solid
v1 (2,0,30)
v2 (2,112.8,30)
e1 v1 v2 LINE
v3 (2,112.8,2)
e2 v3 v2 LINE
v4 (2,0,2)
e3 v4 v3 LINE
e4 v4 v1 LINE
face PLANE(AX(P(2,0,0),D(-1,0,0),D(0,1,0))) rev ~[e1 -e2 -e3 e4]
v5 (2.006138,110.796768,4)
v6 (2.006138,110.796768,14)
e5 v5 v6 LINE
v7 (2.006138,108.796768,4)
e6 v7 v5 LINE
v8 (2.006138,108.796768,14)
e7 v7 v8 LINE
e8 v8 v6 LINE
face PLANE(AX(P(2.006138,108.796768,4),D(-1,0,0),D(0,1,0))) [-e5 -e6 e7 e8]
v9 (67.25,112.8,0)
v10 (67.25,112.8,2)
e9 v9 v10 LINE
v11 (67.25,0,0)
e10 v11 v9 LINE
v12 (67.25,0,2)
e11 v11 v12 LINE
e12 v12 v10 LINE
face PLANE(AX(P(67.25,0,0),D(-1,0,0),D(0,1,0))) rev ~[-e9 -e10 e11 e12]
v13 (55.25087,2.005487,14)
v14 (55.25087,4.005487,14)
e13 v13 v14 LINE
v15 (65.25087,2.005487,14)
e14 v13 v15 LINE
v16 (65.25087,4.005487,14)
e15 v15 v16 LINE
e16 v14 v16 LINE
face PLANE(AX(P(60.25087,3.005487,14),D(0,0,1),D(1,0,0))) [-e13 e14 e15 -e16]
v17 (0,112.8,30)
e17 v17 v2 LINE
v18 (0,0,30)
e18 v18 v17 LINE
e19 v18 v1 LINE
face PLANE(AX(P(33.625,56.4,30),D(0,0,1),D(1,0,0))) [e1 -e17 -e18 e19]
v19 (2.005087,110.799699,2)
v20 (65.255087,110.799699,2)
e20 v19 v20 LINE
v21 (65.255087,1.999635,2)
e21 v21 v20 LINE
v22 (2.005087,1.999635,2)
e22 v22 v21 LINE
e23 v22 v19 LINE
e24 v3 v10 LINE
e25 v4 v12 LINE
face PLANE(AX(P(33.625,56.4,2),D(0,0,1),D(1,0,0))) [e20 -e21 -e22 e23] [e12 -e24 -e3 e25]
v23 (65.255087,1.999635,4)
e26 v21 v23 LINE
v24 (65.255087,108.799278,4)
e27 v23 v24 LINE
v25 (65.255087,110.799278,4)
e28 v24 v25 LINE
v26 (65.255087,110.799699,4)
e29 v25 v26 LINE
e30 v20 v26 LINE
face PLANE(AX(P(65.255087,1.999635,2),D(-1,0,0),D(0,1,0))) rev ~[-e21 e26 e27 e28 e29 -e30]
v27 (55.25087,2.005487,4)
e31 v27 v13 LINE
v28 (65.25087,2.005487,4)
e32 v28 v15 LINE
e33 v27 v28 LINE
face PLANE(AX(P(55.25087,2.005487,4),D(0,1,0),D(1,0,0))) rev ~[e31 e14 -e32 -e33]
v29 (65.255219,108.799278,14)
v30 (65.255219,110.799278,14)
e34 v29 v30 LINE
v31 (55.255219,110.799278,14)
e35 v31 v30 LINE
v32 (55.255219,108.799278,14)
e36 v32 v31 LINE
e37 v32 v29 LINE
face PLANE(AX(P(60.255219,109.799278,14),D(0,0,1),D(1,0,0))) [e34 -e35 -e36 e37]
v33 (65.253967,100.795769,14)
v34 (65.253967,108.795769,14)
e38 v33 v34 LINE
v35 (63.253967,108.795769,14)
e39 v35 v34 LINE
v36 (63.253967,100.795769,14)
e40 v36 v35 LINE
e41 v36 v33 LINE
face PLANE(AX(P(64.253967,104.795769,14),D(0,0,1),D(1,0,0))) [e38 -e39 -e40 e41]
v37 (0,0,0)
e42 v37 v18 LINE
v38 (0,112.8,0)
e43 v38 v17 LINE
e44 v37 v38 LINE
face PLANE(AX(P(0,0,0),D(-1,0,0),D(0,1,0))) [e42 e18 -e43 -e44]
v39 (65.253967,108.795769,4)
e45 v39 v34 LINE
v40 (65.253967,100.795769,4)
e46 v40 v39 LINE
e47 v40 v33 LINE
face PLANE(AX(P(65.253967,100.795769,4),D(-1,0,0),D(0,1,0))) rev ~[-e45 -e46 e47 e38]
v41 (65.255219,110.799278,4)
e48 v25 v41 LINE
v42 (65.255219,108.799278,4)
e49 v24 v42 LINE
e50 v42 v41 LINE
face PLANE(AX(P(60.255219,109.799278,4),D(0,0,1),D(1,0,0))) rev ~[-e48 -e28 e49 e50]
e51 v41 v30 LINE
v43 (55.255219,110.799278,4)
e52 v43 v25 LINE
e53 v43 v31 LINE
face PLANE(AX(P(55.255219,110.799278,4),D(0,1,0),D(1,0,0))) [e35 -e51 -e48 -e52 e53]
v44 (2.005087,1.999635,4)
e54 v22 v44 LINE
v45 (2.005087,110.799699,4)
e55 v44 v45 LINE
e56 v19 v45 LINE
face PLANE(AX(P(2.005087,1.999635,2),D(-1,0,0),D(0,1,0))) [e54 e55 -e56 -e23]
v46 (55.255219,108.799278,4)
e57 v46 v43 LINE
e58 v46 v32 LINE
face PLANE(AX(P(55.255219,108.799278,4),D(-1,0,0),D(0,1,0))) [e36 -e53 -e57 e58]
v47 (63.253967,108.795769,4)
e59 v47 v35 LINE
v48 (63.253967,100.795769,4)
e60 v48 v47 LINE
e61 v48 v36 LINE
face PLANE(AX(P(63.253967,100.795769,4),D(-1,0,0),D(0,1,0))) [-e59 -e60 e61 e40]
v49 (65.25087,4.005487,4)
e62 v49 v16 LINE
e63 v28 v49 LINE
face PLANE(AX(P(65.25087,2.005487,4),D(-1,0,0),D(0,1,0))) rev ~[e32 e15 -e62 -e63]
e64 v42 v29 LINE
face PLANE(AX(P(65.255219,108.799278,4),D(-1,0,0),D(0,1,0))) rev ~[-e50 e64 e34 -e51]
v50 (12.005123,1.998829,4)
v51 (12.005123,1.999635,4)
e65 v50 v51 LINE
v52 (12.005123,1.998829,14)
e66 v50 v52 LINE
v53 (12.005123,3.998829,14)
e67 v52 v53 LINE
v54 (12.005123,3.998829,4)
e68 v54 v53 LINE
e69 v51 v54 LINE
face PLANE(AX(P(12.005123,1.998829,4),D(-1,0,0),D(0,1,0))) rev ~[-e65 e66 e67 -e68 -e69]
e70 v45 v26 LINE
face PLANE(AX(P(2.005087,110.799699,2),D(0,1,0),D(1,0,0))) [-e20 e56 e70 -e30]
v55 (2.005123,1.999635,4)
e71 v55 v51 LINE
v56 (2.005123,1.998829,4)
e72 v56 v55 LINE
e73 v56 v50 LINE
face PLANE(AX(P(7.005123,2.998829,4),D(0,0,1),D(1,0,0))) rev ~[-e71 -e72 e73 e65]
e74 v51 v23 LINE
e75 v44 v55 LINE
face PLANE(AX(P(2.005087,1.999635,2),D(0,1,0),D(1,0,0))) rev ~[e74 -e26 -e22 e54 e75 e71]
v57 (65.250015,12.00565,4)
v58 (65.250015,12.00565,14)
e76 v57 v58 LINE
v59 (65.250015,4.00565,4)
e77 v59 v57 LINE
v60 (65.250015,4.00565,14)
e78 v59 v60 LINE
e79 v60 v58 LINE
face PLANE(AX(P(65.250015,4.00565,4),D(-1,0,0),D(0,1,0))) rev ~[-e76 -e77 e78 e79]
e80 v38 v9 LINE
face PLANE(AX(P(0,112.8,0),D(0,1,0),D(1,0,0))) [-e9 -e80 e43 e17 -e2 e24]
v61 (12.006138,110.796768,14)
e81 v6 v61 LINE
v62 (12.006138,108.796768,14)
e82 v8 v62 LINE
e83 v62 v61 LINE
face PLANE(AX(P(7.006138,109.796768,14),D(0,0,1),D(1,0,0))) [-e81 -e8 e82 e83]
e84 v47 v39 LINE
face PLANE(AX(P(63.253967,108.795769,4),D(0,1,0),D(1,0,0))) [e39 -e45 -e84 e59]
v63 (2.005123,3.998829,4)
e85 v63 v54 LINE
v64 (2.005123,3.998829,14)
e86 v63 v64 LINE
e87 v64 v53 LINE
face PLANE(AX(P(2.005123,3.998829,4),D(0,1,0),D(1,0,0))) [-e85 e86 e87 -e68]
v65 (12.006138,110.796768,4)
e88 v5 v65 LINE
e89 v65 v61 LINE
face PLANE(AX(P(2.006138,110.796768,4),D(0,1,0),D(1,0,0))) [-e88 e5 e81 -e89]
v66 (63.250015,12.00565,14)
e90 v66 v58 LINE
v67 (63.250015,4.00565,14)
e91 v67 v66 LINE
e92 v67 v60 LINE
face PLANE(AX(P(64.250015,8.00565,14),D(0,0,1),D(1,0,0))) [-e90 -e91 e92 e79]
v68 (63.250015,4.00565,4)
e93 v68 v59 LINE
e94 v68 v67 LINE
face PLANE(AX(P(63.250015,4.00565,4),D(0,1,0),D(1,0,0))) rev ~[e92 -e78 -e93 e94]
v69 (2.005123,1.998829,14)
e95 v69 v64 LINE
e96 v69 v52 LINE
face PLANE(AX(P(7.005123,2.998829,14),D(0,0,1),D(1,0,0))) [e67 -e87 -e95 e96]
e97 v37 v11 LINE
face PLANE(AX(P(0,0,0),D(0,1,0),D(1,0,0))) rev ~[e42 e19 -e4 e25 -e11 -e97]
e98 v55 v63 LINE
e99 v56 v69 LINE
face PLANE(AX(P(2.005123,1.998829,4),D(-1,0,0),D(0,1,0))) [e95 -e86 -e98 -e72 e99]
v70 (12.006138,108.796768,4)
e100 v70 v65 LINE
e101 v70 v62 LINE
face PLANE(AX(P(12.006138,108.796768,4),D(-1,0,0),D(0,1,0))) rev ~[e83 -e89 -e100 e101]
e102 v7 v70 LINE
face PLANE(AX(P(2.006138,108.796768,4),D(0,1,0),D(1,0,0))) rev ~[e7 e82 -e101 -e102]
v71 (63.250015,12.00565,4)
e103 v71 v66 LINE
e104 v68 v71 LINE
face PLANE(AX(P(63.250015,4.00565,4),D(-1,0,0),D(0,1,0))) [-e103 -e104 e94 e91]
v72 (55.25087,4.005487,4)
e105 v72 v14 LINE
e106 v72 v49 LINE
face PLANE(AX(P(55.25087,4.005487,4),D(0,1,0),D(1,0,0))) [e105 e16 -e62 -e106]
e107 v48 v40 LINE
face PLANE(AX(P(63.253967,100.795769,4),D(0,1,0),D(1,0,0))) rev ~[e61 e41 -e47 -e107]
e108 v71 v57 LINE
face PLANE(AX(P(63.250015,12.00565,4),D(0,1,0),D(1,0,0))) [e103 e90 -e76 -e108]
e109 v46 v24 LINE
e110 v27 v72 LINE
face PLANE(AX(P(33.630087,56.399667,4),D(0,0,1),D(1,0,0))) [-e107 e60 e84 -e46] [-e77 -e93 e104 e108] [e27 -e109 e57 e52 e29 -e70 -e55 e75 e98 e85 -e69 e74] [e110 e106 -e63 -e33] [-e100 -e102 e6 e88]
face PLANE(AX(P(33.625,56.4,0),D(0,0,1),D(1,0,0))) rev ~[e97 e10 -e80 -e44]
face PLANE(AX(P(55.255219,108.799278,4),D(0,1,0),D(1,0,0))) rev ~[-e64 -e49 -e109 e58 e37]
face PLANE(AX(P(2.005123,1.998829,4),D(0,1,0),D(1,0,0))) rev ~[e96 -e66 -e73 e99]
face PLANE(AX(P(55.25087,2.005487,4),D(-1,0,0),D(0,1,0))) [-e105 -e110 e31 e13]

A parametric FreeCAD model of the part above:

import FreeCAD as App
import Part
import Sketcher

V = App.Vector
Q = App.Units.Quantity


def faces_at(feature, points):
    """Names of the faces that lie closest to the given points."""
    faces = feature.Shape.Faces
    near = lambda p: min(range(len(faces)), key=lambda i: faces[i].distToShape(Part.Vertex(*p))[0])
    return sorted({f"Face{near(p) + 1}" for p in points})

doc = App.newDocument("Part")
body = doc.addObject("PartDesign::Body", "Body")

sketch1 = body.newObject("Sketcher::SketchObject", "Sketch")
sketch1.AttachmentSupport = (doc.getObject("XY_Plane"), [""])
sketch1.MapMode = "FlatFace"
sketch1.addGeometry([
    Part.LineSegment(V(0, 113, 0), V(0, 0, 0)),
    Part.LineSegment(V(0, 0, 0), V(67, 0, 0)),
    Part.LineSegment(V(67, 0, 0), V(67, 113, 0)),
    Part.LineSegment(V(67, 113, 0), V(0, 113, 0)),
], False)
sketch1.addConstraint([
    Sketcher.Constraint("Coincident", 0, 2, 1, 1),
    Sketcher.Constraint("Coincident", 1, 2, 2, 1),
    Sketcher.Constraint("Coincident", 2, 2, 3, 1),
    Sketcher.Constraint("Coincident", 3, 2, 0, 1),
    Sketcher.Constraint("Vertical", 0),
    Sketcher.Constraint("Horizontal", 1),
    Sketcher.Constraint("Vertical", 2),
    Sketcher.Constraint("Horizontal", 3),
    Sketcher.Constraint("Coincident", 0, 2, -1, 1),
    Sketcher.Constraint("DistanceY", 0, 2, 0, 1, Q("112.8 mm")),
    Sketcher.Constraint("DistanceX", 1, 1, 1, 2, Q("67.25 mm")),
])
pad1 = body.newObject("PartDesign::Pad", "Pad")
pad1.Profile = sketch1
pad1.Length = 30
doc.recompute()

thickness = body.newObject("PartDesign::Thickness", "Thickness")
thickness.Base = (pad1, faces_at(pad1, [
    (67.25, 56.4, 15),
    (33.625, 0, 15),
    (33.625, 56.4, 30),
    (33.625, 112.8, 15),
]))
thickness.Value = 2
thickness.Reversed = True
thickness.Join = "Arc"

sketch2 = body.newObject("Sketcher::SketchObject", "Sketch001")
sketch2.AttachmentSupport = (doc.getObject("XY_Plane"), [""])
sketch2.MapMode = "FlatFace"
sketch2.AttachmentOffset = App.Placement(V(0, 0, 2), App.Rotation())
sketch2.addGeometry([
    Part.LineSegment(V(2, 111, 0), V(2, 2, 0)),
    Part.LineSegment(V(2, 2, 0), V(65, 2, 0)),
    Part.LineSegment(V(65, 2, 0), V(65, 111, 0)),
    Part.LineSegment(V(65, 111, 0), V(2, 111, 0)),
], False)
sketch2.addConstraint([
    Sketcher.Constraint("Coincident", 0, 2, 1, 1),
    Sketcher.Constraint("Coincident", 1, 2, 2, 1),
    Sketcher.Constraint("Coincident", 2, 2, 3, 1),
    Sketcher.Constraint("Coincident", 3, 2, 0, 1),
    Sketcher.Constraint("Vertical", 0),
    Sketcher.Constraint("Horizontal", 1),
    Sketcher.Constraint("Vertical", 2),
    Sketcher.Constraint("Horizontal", 3),
    Sketcher.Constraint("DistanceX", 1, 1, 1, 2, Q("63.25 mm")),
    Sketcher.Constraint("DistanceY", -1, 1, 2, 2, Q("110.799699 mm")),
    Sketcher.Constraint("DistanceY", 0, 2, 0, 1, Q("108.800063 mm")),
    Sketcher.Constraint("DistanceX", -1, 1, 0, 2, Q("2.005087 mm")),
])
pad2 = body.newObject("PartDesign::Pad", "Pad001")
pad2.Profile = sketch2
pad2.Length = 2

sketch3 = body.newObject("Sketcher::SketchObject", "Sketch002")
sketch3.AttachmentSupport = (doc.getObject("XY_Plane"), [""])
sketch3.MapMode = "FlatFace"
sketch3.AttachmentOffset = App.Placement(V(0, 0, 4), App.Rotation())
sketch3.addGeometry([
    Part.LineSegment(V(2, 4, 0), V(2, 2, 0)),
    Part.LineSegment(V(2, 2, 0), V(12, 2, 0)),
    Part.LineSegment(V(12, 2, 0), V(12, 4, 0)),
    Part.LineSegment(V(12, 4, 0), V(2, 4, 0)),
], False)
sketch3.addConstraint([
    Sketcher.Constraint("Coincident", 0, 2, 1, 1),
    Sketcher.Constraint("Coincident", 1, 2, 2, 1),
    Sketcher.Constraint("Coincident", 2, 2, 3, 1),
    Sketcher.Constraint("Coincident", 3, 2, 0, 1),
    Sketcher.Constraint("Vertical", 0),
    Sketcher.Constraint("Horizontal", 1),
    Sketcher.Constraint("Vertical", 2),
    Sketcher.Constraint("Horizontal", 3),
    Sketcher.Constraint("DistanceX", 1, 1, 1, 2, Q("10 mm")),
    Sketcher.Constraint("DistanceY", 0, 2, 0, 1, Q("2 mm")),
    Sketcher.Constraint("DistanceY", -1, 1, 0, 2, Q("1.998829 mm")),
    Sketcher.Constraint("DistanceX", -1, 1, 0, 2, Q("2.005123 mm")),
])
pad3 = body.newObject("PartDesign::Pad", "Pad002")
pad3.Profile = sketch3
pad3.Length = 10

sketch4 = body.newObject("Sketcher::SketchObject", "Sketch003")
sketch4.AttachmentSupport = (doc.getObject("XY_Plane"), [""])
sketch4.MapMode = "FlatFace"
sketch4.AttachmentOffset = App.Placement(V(0, 0, 4), App.Rotation())
sketch4.addGeometry([
    Part.LineSegment(V(55.3, 4, 0), V(55.3, 2, 0)),
    Part.LineSegment(V(55.3, 2, 0), V(65.3, 2, 0)),
    Part.LineSegment(V(65.3, 2, 0), V(65.3, 4, 0)),
    Part.LineSegment(V(65.3, 4, 0), V(55.3, 4, 0)),
], False)
sketch4.addConstraint([
    Sketcher.Constraint("Coincident", 0, 2, 1, 1),
    Sketcher.Constraint("Coincident", 1, 2, 2, 1),
    Sketcher.Constraint("Coincident", 2, 2, 3, 1),
    Sketcher.Constraint("Coincident", 3, 2, 0, 1),
    Sketcher.Constraint("Vertical", 0),
    Sketcher.Constraint("Horizontal", 1),
    Sketcher.Constraint("Vertical", 2),
    Sketcher.Constraint("Horizontal", 3),
    Sketcher.Constraint("DistanceX", 1, 1, 1, 2, Q("10 mm")),
    Sketcher.Constraint("DistanceY", 0, 2, 0, 1, Q("2 mm")),
    Sketcher.Constraint("DistanceX", -1, 1, 0, 2, Q("55.25087 mm")),
    Sketcher.Constraint("DistanceY", -1, 1, 0, 2, Q("2.005487 mm")),
])
pad4 = body.newObject("PartDesign::Pad", "Pad003")
pad4.Profile = sketch4
pad4.Length = 10

sketch5 = body.newObject("Sketcher::SketchObject", "Sketch004")
sketch5.AttachmentSupport = (doc.getObject("XY_Plane"), [""])
sketch5.MapMode = "FlatFace"
sketch5.AttachmentOffset = App.Placement(V(0, 0, 4), App.Rotation())
sketch5.addGeometry([
    Part.LineSegment(V(63.3, 12, 0), V(63.3, 4, 0)),
    Part.LineSegment(V(63.3, 4, 0), V(65.3, 4, 0)),
    Part.LineSegment(V(65.3, 4, 0), V(65.3, 12, 0)),
    Part.LineSegment(V(65.3, 12, 0), V(63.3, 12, 0)),
], False)
sketch5.addConstraint([
    Sketcher.Constraint("Coincident", 0, 2, 1, 1),
    Sketcher.Constraint("Coincident", 1, 2, 2, 1),
    Sketcher.Constraint("Coincident", 2, 2, 3, 1),
    Sketcher.Constraint("Coincident", 3, 2, 0, 1),
    Sketcher.Constraint("Vertical", 0),
    Sketcher.Constraint("Horizontal", 1),
    Sketcher.Constraint("Vertical", 2),
    Sketcher.Constraint("Horizontal", 3),
    Sketcher.Constraint("DistanceX", 1, 1, 1, 2, Q("2 mm")),
    Sketcher.Constraint("DistanceY", 0, 2, 0, 1, Q("8 mm")),
    Sketcher.Constraint("DistanceY", -1, 1, 0, 2, Q("4.00565 mm")),
    Sketcher.Constraint("DistanceX", -1, 1, 0, 2, Q("63.250015 mm")),
])
pad5 = body.newObject("PartDesign::Pad", "Pad004")
pad5.Profile = sketch5
pad5.Length = 10

sketch6 = body.newObject("Sketcher::SketchObject", "Sketch005")
sketch6.AttachmentSupport = (doc.getObject("XY_Plane"), [""])
sketch6.MapMode = "FlatFace"
sketch6.AttachmentOffset = App.Placement(V(0, 0, 4), App.Rotation())
sketch6.addGeometry([
    Part.LineSegment(V(55.3, 110.8, 0), V(55.3, 108.8, 0)),
    Part.LineSegment(V(55.3, 108.8, 0), V(65.3, 108.8, 0)),
    Part.LineSegment(V(65.3, 108.8, 0), V(65.3, 110.8, 0)),
    Part.LineSegment(V(65.3, 110.8, 0), V(55.3, 110.8, 0)),
], False)
sketch6.addConstraint([
    Sketcher.Constraint("Coincident", 0, 2, 1, 1),
    Sketcher.Constraint("Coincident", 1, 2, 2, 1),
    Sketcher.Constraint("Coincident", 2, 2, 3, 1),
    Sketcher.Constraint("Coincident", 3, 2, 0, 1),
    Sketcher.Constraint("Vertical", 0),
    Sketcher.Constraint("Horizontal", 1),
    Sketcher.Constraint("Vertical", 2),
    Sketcher.Constraint("Horizontal", 3),
    Sketcher.Constraint("DistanceX", 1, 1, 1, 2, Q("10 mm")),
    Sketcher.Constraint("DistanceY", 0, 2, 0, 1, Q("2 mm")),
    Sketcher.Constraint("DistanceX", -1, 1, 0, 2, Q("55.255219 mm")),
    Sketcher.Constraint("DistanceY", -1, 1, 0, 2, Q("108.799278 mm")),
])
pad6 = body.newObject("PartDesign::Pad", "Pad005")
pad6.Profile = sketch6
pad6.Length = 10

sketch7 = body.newObject("Sketcher::SketchObject", "Sketch006")
sketch7.AttachmentSupport = (doc.getObject("XY_Plane"), [""])
sketch7.MapMode = "FlatFace"
sketch7.AttachmentOffset = App.Placement(V(0, 0, 4), App.Rotation())
sketch7.addGeometry([
    Part.LineSegment(V(63.3, 108.8, 0), V(63.3, 100.8, 0)),
    Part.LineSegment(V(63.3, 100.8, 0), V(65.3, 100.8, 0)),
    Part.LineSegment(V(65.3, 100.8, 0), V(65.3, 108.8, 0)),
    Part.LineSegment(V(65.3, 108.8, 0), V(63.3, 108.8, 0)),
], False)
sketch7.addConstraint([
    Sketcher.Constraint("Coincident", 0, 2, 1, 1),
    Sketcher.Constraint("Coincident", 1, 2, 2, 1),
    Sketcher.Constraint("Coincident", 2, 2, 3, 1),
    Sketcher.Constraint("Coincident", 3, 2, 0, 1),
    Sketcher.Constraint("Vertical", 0),
    Sketcher.Constraint("Horizontal", 1),
    Sketcher.Constraint("Vertical", 2),
    Sketcher.Constraint("Horizontal", 3),
    Sketcher.Constraint("DistanceX", 1, 1, 1, 2, Q("2 mm")),
    Sketcher.Constraint("DistanceY", 0, 2, 0, 1, Q("8 mm")),
    Sketcher.Constraint("DistanceY", -1, 1, 0, 2, Q("100.795769 mm")),
    Sketcher.Constraint("DistanceX", -1, 1, 0, 2, Q("63.253967 mm")),
])
pad7 = body.newObject("PartDesign::Pad", "Pad006")
pad7.Profile = sketch7
pad7.Length = 10

sketch8 = body.newObject("Sketcher::SketchObject", "Sketch007")
sketch8.AttachmentSupport = (doc.getObject("XY_Plane"), [""])
sketch8.MapMode = "FlatFace"
sketch8.AttachmentOffset = App.Placement(V(0, 0, 4), App.Rotation())
sketch8.addGeometry([
    Part.LineSegment(V(2, 110.8, 0), V(2, 108.8, 0)),
    Part.LineSegment(V(2, 108.8, 0), V(12, 108.8, 0)),
    Part.LineSegment(V(12, 108.8, 0), V(12, 110.8, 0)),
    Part.LineSegment(V(12, 110.8, 0), V(2, 110.8, 0)),
], False)
sketch8.addConstraint([
    Sketcher.Constraint("Coincident", 0, 2, 1, 1),
    Sketcher.Constraint("Coincident", 1, 2, 2, 1),
    Sketcher.Constraint("Coincident", 2, 2, 3, 1),
    Sketcher.Constraint("Coincident", 3, 2, 0, 1),
    Sketcher.Constraint("Vertical", 0),
    Sketcher.Constraint("Horizontal", 1),
    Sketcher.Constraint("Vertical", 2),
    Sketcher.Constraint("Horizontal", 3),
    Sketcher.Constraint("DistanceX", 1, 1, 1, 2, Q("10 mm")),
    Sketcher.Constraint("DistanceY", 0, 2, 0, 1, Q("2 mm")),
    Sketcher.Constraint("DistanceX", -1, 1, 0, 2, Q("2.006138 mm")),
    Sketcher.Constraint("DistanceY", -1, 1, 0, 2, Q("108.796768 mm")),
])
pad8 = body.newObject("PartDesign::Pad", "Pad007")
pad8.Profile = sketch8
pad8.Length = 10

doc.recompute()
